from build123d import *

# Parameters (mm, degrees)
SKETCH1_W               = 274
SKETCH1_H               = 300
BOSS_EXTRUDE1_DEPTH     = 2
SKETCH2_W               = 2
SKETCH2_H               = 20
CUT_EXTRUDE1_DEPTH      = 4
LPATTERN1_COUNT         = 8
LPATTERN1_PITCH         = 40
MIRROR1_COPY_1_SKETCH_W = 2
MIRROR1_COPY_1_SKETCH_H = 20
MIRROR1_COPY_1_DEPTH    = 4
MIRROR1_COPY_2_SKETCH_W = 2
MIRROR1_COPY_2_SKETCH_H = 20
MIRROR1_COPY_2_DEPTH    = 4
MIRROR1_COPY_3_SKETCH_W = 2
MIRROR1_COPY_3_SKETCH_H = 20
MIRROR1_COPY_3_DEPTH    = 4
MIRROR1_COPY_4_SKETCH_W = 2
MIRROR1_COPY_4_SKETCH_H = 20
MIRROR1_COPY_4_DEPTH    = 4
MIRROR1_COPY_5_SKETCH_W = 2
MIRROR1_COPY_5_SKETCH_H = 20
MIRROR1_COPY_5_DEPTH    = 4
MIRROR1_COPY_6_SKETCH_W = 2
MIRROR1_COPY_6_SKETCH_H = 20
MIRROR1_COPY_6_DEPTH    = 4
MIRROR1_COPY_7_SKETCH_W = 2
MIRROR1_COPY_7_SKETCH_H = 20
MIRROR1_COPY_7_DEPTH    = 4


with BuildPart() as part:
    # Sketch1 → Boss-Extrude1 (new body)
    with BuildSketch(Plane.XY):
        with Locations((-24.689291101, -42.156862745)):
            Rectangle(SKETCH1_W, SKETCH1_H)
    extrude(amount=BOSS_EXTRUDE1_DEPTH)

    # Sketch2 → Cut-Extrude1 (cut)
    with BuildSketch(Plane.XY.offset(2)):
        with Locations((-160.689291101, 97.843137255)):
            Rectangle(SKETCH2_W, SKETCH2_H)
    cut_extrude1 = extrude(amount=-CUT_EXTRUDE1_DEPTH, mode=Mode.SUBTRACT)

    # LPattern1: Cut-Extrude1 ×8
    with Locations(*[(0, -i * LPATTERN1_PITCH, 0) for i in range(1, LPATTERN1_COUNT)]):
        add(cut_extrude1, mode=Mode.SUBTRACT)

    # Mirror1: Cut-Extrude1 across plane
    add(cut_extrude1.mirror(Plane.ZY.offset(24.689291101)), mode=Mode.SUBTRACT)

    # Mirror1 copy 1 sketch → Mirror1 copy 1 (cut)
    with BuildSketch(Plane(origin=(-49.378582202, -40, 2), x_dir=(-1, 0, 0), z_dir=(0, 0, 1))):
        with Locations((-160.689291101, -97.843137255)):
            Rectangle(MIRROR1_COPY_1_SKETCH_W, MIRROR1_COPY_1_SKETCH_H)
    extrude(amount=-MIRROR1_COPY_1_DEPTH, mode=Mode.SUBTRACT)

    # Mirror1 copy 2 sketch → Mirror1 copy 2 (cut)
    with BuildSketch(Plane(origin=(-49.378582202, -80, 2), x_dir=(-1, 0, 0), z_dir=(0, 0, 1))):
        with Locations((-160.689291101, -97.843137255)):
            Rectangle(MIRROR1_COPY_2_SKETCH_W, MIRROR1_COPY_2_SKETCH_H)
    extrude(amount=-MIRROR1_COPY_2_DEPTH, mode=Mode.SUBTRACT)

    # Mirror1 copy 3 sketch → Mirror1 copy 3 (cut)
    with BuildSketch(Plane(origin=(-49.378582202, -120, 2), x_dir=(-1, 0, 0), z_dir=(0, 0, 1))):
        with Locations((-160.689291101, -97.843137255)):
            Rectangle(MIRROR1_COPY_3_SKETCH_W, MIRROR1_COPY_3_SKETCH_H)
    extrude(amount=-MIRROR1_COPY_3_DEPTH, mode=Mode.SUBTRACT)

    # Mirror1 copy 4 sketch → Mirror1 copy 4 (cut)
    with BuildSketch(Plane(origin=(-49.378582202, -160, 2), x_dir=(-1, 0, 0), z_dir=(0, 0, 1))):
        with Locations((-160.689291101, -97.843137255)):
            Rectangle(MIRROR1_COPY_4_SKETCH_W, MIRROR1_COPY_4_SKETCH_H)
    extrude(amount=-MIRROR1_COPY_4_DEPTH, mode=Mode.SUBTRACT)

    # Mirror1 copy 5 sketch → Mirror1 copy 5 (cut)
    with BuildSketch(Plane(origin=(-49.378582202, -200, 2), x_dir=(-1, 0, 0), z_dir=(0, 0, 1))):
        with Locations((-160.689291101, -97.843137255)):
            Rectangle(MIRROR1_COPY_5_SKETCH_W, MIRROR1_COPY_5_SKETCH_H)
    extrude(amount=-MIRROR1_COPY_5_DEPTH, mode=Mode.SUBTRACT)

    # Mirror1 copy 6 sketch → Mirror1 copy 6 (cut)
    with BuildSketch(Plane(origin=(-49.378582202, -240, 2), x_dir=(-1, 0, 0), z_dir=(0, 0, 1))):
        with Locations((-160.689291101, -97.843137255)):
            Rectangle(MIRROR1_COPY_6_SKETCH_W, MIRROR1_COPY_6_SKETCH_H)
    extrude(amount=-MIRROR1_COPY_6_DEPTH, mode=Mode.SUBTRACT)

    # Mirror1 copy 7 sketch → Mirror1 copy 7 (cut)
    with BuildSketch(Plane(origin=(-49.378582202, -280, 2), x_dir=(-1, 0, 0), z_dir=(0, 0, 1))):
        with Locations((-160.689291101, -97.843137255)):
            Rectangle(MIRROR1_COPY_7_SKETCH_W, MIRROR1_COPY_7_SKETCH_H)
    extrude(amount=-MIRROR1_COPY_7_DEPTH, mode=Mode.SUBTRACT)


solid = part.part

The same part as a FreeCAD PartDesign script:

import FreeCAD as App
import Part
import Sketcher
from FreeCAD import Vector
Q = App.Units.Quantity

doc = App.newDocument("Part")
body = doc.addObject("PartDesign::Body", "Body")

sketch1 = doc.addObject("Sketcher::SketchObject", "Sketch")
body.addObject(sketch1)
sketch1.AttachmentSupport = (doc.XY_Plane, [""])
sketch1.MapMode = "FlatFace"
sketch1.addGeometry(Part.LineSegment(Vector(-161.689291, 107.843137, 0), Vector(-161.689291, -192.156863, 0)), False)
sketch1.addGeometry(Part.LineSegment(Vector(-161.689291, -192.156863, 0), Vector(112.310709, -192.156863, 0)), False)
sketch1.addGeometry(Part.LineSegment(Vector(112.310709, -192.156863, 0), Vector(112.310709, 107.843137, 0)), False)
sketch1.addGeometry(Part.LineSegment(Vector(112.310709, 107.843137, 0), Vector(-161.689291, 107.843137, 0)), False)
sketch1.addConstraint(Sketcher.Constraint("Coincident", 0, 2, 1, 1))
sketch1.addConstraint(Sketcher.Constraint("Coincident", 1, 2, 2, 1))
sketch1.addConstraint(Sketcher.Constraint("Coincident", 2, 2, 3, 1))
sketch1.addConstraint(Sketcher.Constraint("Coincident", 3, 2, 0, 1))
sketch1.addConstraint(Sketcher.Constraint("Vertical", 0))
sketch1.addConstraint(Sketcher.Constraint("Horizontal", 1))
sketch1.addConstraint(Sketcher.Constraint("Vertical", 2))
sketch1.addConstraint(Sketcher.Constraint("Horizontal", 3))
sketch1.addConstraint(Sketcher.Constraint("DistanceX", 1, 1, 1, 2, Q("274 mm")))
sketch1.addConstraint(Sketcher.Constraint("DistanceY", 0, 2, 0, 1, Q("300 mm")))
sketch1.addConstraint(Sketcher.Constraint("DistanceX", 0, 2, -1, 1, Q("161.689291 mm")))
sketch1.addConstraint(Sketcher.Constraint("DistanceY", 0, 2, -1, 1, Q("192.156863 mm")))
pad1 = doc.addObject("PartDesign::Pad", "Pad")
body.addObject(pad1)
pad1.Profile = sketch1
pad1.Length = 2

sketch2 = doc.addObject("Sketcher::SketchObject", "Sketch001")
body.addObject(sketch2)
sketch2.AttachmentSupport = (doc.XY_Plane, [""])
sketch2.MapMode = "FlatFace"
sketch2.AttachmentOffset = App.Placement(Vector(0, 0, 2), App.Rotation())
sketch2.addGeometry(Part.LineSegment(Vector(-161.689291, 107.843137, 0), Vector(-161.689291, 87.843137, 0)), False)
sketch2.addGeometry(Part.LineSegment(Vector(-161.689291, 87.843137, 0), Vector(-159.689291, 87.843137, 0)), False)
sketch2.addGeometry(Part.LineSegment(Vector(-159.689291, 87.843137, 0), Vector(-159.689291, 107.843137, 0)), False)
sketch2.addGeometry(Part.LineSegment(Vector(-159.689291, 107.843137, 0), Vector(-161.689291, 107.843137, 0)), False)
sketch2.addConstraint(Sketcher.Constraint("Coincident", 0, 2, 1, 1))
sketch2.addConstraint(Sketcher.Constraint("Coincident", 1, 2, 2, 1))
sketch2.addConstraint(Sketcher.Constraint("Coincident", 2, 2, 3, 1))
sketch2.addConstraint(Sketcher.Constraint("Coincident", 3, 2, 0, 1))
sketch2.addConstraint(Sketcher.Constraint("Vertical", 0))
sketch2.addConstraint(Sketcher.Constraint("Horizontal", 1))
sketch2.addConstraint(Sketcher.Constraint("Vertical", 2))
sketch2.addConstraint(Sketcher.Constraint("Horizontal", 3))
sketch2.addConstraint(Sketcher.Constraint("DistanceX", 1, 1, 1, 2, Q("2 mm")))
sketch2.addConstraint(Sketcher.Constraint("DistanceY", 0, 2, 0, 1, Q("20 mm")))
sketch2.addConstraint(Sketcher.Constraint("DistanceX", 0, 2, -1, 1, Q("161.689291 mm")))
sketch2.addConstraint(Sketcher.Constraint("DistanceY", -1, 1, 0, 2, Q("87.843137 mm")))
pocket1 = doc.addObject("PartDesign::Pocket", "Pocket")
body.addObject(pocket1)
pocket1.Profile = sketch2
pocket1.Length = 4
doc.recompute()

linearpattern = doc.addObject("PartDesign::LinearPattern", "LinearPattern")
body.addObject(linearpattern)
linearpattern.Originals = [pocket1]
linearpattern.Direction = (doc.Y_Axis, [""])
linearpattern.Mode = "offset"
linearpattern.Offset = 40
linearpattern.Occurrences = 8
linearpattern.Reversed = True
body.Tip = linearpattern
doc.recompute()

datumplane = doc.addObject("PartDesign::Plane", "DatumPlane")
body.addObject(datumplane)
datumplane.AttachmentSupport = (doc.YZ_Plane, [""])
datumplane.MapMode = "FlatFace"
datumplane.AttachmentOffset = App.Placement(Vector(0, 0, -24.689291), App.Rotation())
mirrored = doc.addObject("PartDesign::Mirrored", "Mirrored")
body.addObject(mirrored)
mirrored.Originals = [pocket1]
mirrored.MirrorPlane = (datumplane, [""])
body.Tip = mirrored

sketch3 = doc.addObject("Sketcher::SketchObject", "Sketch002")
body.addObject(sketch3)
sketch3.AttachmentSupport = (doc.XY_Plane, [""])
sketch3.MapMode = "FlatFace"
sketch3.AttachmentOffset = App.Placement(Vector(0, 0, 2), App.Rotation())
sketch3.addGeometry(Part.LineSegment(Vector(112.310709, 47.843137, 0), Vector(112.310709, 67.843137, 0)), False)
sketch3.addGeometry(Part.LineSegment(Vector(112.310709, 67.843137, 0), Vector(110.310709, 67.843137, 0)), False)
sketch3.addGeometry(Part.LineSegment(Vector(110.310709, 67.843137, 0), Vector(110.310709, 47.843137, 0)), False)
sketch3.addGeometry(Part.LineSegment(Vector(110.310709, 47.843137, 0), Vector(112.310709, 47.843137, 0)), False)
sketch3.addConstraint(Sketcher.Constraint("Coincident", 0, 2, 1, 1))
sketch3.addConstraint(Sketcher.Constraint("Coincident", 1, 2, 2, 1))
sketch3.addConstraint(Sketcher.Constraint("Coincident", 2, 2, 3, 1))
sketch3.addConstraint(Sketcher.Constraint("Coincident", 3, 2, 0, 1))
sketch3.addConstraint(Sketcher.Constraint("Vertical", 0))
sketch3.addConstraint(Sketcher.Constraint("Horizontal", 1))
sketch3.addConstraint(Sketcher.Constraint("Vertical", 2))
sketch3.addConstraint(Sketcher.Constraint("Horizontal", 3))
sketch3.addConstraint(Sketcher.Constraint("DistanceX", 1, 2, 1, 1, Q("2 mm")))
sketch3.addConstraint(Sketcher.Constraint("DistanceY", 0, 1, 0, 2, Q("20 mm")))
sketch3.addConstraint(Sketcher.Constraint("DistanceX", -1, 1, 0, 2, Q("112.310709 mm")))
sketch3.addConstraint(Sketcher.Constraint("DistanceY", -1, 1, 0, 2, Q("67.843137 mm")))
pocket2 = doc.addObject("PartDesign::Pocket", "Pocket001")
body.addObject(pocket2)
pocket2.Profile = sketch3
pocket2.Length = 4

sketch4 = doc.addObject("Sketcher::SketchObject", "Sketch003")
body.addObject(sketch4)
sketch4.AttachmentSupport = (doc.XY_Plane, [""])
sketch4.MapMode = "FlatFace"
sketch4.AttachmentOffset = App.Placement(Vector(0, 0, 2), App.Rotation())
sketch4.addGeometry(Part.LineSegment(Vector(112.310709, 7.843137, 0), Vector(112.310709, 27.843137, 0)), False)
sketch4.addGeometry(Part.LineSegment(Vector(112.310709, 27.843137, 0), Vector(110.310709, 27.843137, 0)), False)
sketch4.addGeometry(Part.LineSegment(Vector(110.310709, 27.843137, 0), Vector(110.310709, 7.843137, 0)), False)
sketch4.addGeometry(Part.LineSegment(Vector(110.310709, 7.843137, 0), Vector(112.310709, 7.843137, 0)), False)
sketch4.addConstraint(Sketcher.Constraint("Coincident", 0, 2, 1, 1))
sketch4.addConstraint(Sketcher.Constraint("Coincident", 1, 2, 2, 1))
sketch4.addConstraint(Sketcher.Constraint("Coincident", 2, 2, 3, 1))
sketch4.addConstraint(Sketcher.Constraint("Coincident", 3, 2, 0, 1))
sketch4.addConstraint(Sketcher.Constraint("Vertical", 0))
sketch4.addConstraint(Sketcher.Constraint("Horizontal", 1))
sketch4.addConstraint(Sketcher.Constraint("Vertical", 2))
sketch4.addConstraint(Sketcher.Constraint("Horizontal", 3))
sketch4.addConstraint(Sketcher.Constraint("DistanceX", 1, 2, 1, 1, Q("2 mm")))
sketch4.addConstraint(Sketcher.Constraint("DistanceY", 0, 1, 0, 2, Q("20 mm")))
sketch4.addConstraint(Sketcher.Constraint("DistanceX", -1, 1, 0, 2, Q("112.310709 mm")))
sketch4.addConstraint(Sketcher.Constraint("DistanceY", -1, 1, 0, 2, Q("27.843137 mm")))
pocket3 = doc.addObject("PartDesign::Pocket", "Pocket002")
body.addObject(pocket3)
pocket3.Profile = sketch4
pocket3.Length = 4

sketch5 = doc.addObject("Sketcher::SketchObject", "Sketch004")
body.addObject(sketch5)
sketch5.AttachmentSupport = (doc.XY_Plane, [""])
sketch5.MapMode = "FlatFace"
sketch5.AttachmentOffset = App.Placement(Vector(0, 0, 2), App.Rotation())
sketch5.addGeometry(Part.LineSegment(Vector(112.310709, -32.156863, 0), Vector(112.310709, -12.156863, 0)), False)
sketch5.addGeometry(Part.LineSegment(Vector(112.310709, -12.156863, 0), Vector(110.310709, -12.156863, 0)), False)
sketch5.addGeometry(Part.LineSegment(Vector(110.310709, -12.156863, 0), Vector(110.310709, -32.156863, 0)), False)
sketch5.addGeometry(Part.LineSegment(Vector(110.310709, -32.156863, 0), Vector(112.310709, -32.156863, 0)), False)
sketch5.addConstraint(Sketcher.Constraint("Coincident", 0, 2, 1, 1))
sketch5.addConstraint(Sketcher.Constraint("Coincident", 1, 2, 2, 1))
sketch5.addConstraint(Sketcher.Constraint("Coincident", 2, 2, 3, 1))
sketch5.addConstraint(Sketcher.Constraint("Coincident", 3, 2, 0, 1))
sketch5.addConstraint(Sketcher.Constraint("Vertical", 0))
sketch5.addConstraint(Sketcher.Constraint("Horizontal", 1))
sketch5.addConstraint(Sketcher.Constraint("Vertical", 2))
sketch5.addConstraint(Sketcher.Constraint("Horizontal", 3))
sketch5.addConstraint(Sketcher.Constraint("DistanceX", 1, 2, 1, 1, Q("2 mm")))
sketch5.addConstraint(Sketcher.Constraint("DistanceY", 0, 1, 0, 2, Q("20 mm")))
sketch5.addConstraint(Sketcher.Constraint("DistanceX", -1, 1, 0, 2, Q("112.310709 mm")))
sketch5.addConstraint(Sketcher.Constraint("DistanceY", 0, 2, -1, 1, Q("12.156863 mm")))
pocket4 = doc.addObject("PartDesign::Pocket", "Pocket003")
body.addObject(pocket4)
pocket4.Profile = sketch5
pocket4.Length = 4

sketch6 = doc.addObject("Sketcher::SketchObject", "Sketch005")
body.addObject(sketch6)
sketch6.AttachmentSupport = (doc.XY_Plane, [""])
sketch6.MapMode = "FlatFace"
sketch6.AttachmentOffset = App.Placement(Vector(0, 0, 2), App.Rotation())
sketch6.addGeometry(Part.LineSegment(Vector(112.310709, -72.156863, 0), Vector(112.310709, -52.156863, 0)), False)
sketch6.addGeometry(Part.LineSegment(Vector(112.310709, -52.156863, 0), Vector(110.310709, -52.156863, 0)), False)
sketch6.addGeometry(Part.LineSegment(Vector(110.310709, -52.156863, 0), Vector(110.310709, -72.156863, 0)), False)
sketch6.addGeometry(Part.LineSegment(Vector(110.310709, -72.156863, 0), Vector(112.310709, -72.156863, 0)), False)
sketch6.addConstraint(Sketcher.Constraint("Coincident", 0, 2, 1, 1))
sketch6.addConstraint(Sketcher.Constraint("Coincident", 1, 2, 2, 1))
sketch6.addConstraint(Sketcher.Constraint("Coincident", 2, 2, 3, 1))
sketch6.addConstraint(Sketcher.Constraint("Coincident", 3, 2, 0, 1))
sketch6.addConstraint(Sketcher.Constraint("Vertical", 0))
sketch6.addConstraint(Sketcher.Constraint("Horizontal", 1))
sketch6.addConstraint(Sketcher.Constraint("Vertical", 2))
sketch6.addConstraint(Sketcher.Constraint("Horizontal", 3))
sketch6.addConstraint(Sketcher.Constraint("DistanceX", 1, 2, 1, 1, Q("2 mm")))
sketch6.addConstraint(Sketcher.Constraint("DistanceY", 0, 1, 0, 2, Q("20 mm")))
sketch6.addConstraint(Sketcher.Constraint("DistanceX", -1, 1, 0, 2, Q("112.310709 mm")))
sketch6.addConstraint(Sketcher.Constraint("DistanceY", 0, 2, -1, 1, Q("52.156863 mm")))
pocket5 = doc.addObject("PartDesign::Pocket", "Pocket004")
body.addObject(pocket5)
pocket5.Profile = sketch6
pocket5.Length = 4

sketch7 = doc.addObject("Sketcher::SketchObject", "Sketch006")
body.addObject(sketch7)
sketch7.AttachmentSupport = (doc.XY_Plane, [""])
sketch7.MapMode = "FlatFace"
sketch7.AttachmentOffset = App.Placement(Vector(0, 0, 2), App.Rotation())
sketch7.addGeometry(Part.LineSegment(Vector(112.310709, -112.156863, 0), Vector(112.310709, -92.156863, 0)), False)
sketch7.addGeometry(Part.LineSegment(Vector(112.310709, -92.156863, 0), Vector(110.310709, -92.156863, 0)), False)
sketch7.addGeometry(Part.LineSegment(Vector(110.310709, -92.156863, 0), Vector(110.310709, -112.156863, 0)), False)
sketch7.addGeometry(Part.LineSegment(Vector(110.310709, -112.156863, 0), Vector(112.310709, -112.156863, 0)), False)
sketch7.addConstraint(Sketcher.Constraint("Coincident", 0, 2, 1, 1))
sketch7.addConstraint(Sketcher.Constraint("Coincident", 1, 2, 2, 1))
sketch7.addConstraint(Sketcher.Constraint("Coincident", 2, 2, 3, 1))
sketch7.addConstraint(Sketcher.Constraint("Coincident", 3, 2, 0, 1))
sketch7.addConstraint(Sketcher.Constraint("Vertical", 0))
sketch7.addConstraint(Sketcher.Constraint("Horizontal", 1))
sketch7.addConstraint(Sketcher.Constraint("Vertical", 2))
sketch7.addConstraint(Sketcher.Constraint("Horizontal", 3))
sketch7.addConstraint(Sketcher.Constraint("DistanceX", 1, 2, 1, 1, Q("2 mm")))
sketch7.addConstraint(Sketcher.Constraint("DistanceY", 0, 1, 0, 2, Q("20 mm")))
sketch7.addConstraint(Sketcher.Constraint("DistanceX", -1, 1, 0, 2, Q("112.310709 mm")))
sketch7.addConstraint(Sketcher.Constraint("DistanceY", 0, 2, -1, 1, Q("92.156863 mm")))
pocket6 = doc.addObject("PartDesign::Pocket", "Pocket005")
body.addObject(pocket6)
pocket6.Profile = sketch7
pocket6.Length = 4

sketch8 = doc.addObject("Sketcher::SketchObject", "Sketch007")
body.addObject(sketch8)
sketch8.AttachmentSupport = (doc.XY_Plane, [""])
sketch8.MapMode = "FlatFace"
sketch8.AttachmentOffset = App.Placement(Vector(0, 0, 2), App.Rotation())
sketch8.addGeometry(Part.LineSegment(Vector(112.310709, -152.156863, 0), Vector(112.310709, -132.156863, 0)), False)
sketch8.addGeometry(Part.LineSegment(Vector(112.310709, -132.156863, 0), Vector(110.310709, -132.156863, 0)), False)
sketch8.addGeometry(Part.LineSegment(Vector(110.310709, -132.156863, 0), Vector(110.310709, -152.156863, 0)), False)
sketch8.addGeometry(Part.LineSegment(Vector(110.310709, -152.156863, 0), Vector(112.310709, -152.156863, 0)), False)
sketch8.addConstraint(Sketcher.Constraint("Coincident", 0, 2, 1, 1))
sketch8.addConstraint(Sketcher.Constraint("Coincident", 1, 2, 2, 1))
sketch8.addConstraint(Sketcher.Constraint("Coincident", 2, 2, 3, 1))
sketch8.addConstraint(Sketcher.Constraint("Coincident", 3, 2, 0, 1))
sketch8.addConstraint(Sketcher.Constraint("Vertical", 0))
sketch8.addConstraint(Sketcher.Constraint("Horizontal", 1))
sketch8.addConstraint(Sketcher.Constraint("Vertical", 2))
sketch8.addConstraint(Sketcher.Constraint("Horizontal", 3))
sketch8.addConstraint(Sketcher.Constraint("DistanceX", 1, 2, 1, 1, Q("2 mm")))
sketch8.addConstraint(Sketcher.Constraint("DistanceY", 0, 1, 0, 2, Q("20 mm")))
sketch8.addConstraint(Sketcher.Constraint("DistanceX", -1, 1, 0, 2, Q("112.310709 mm")))
sketch8.addConstraint(Sketcher.Constraint("DistanceY", 0, 2, -1, 1, Q("132.156863 mm")))
pocket7 = doc.addObject("PartDesign::Pocket", "Pocket006")
body.addObject(pocket7)
pocket7.Profile = sketch8
pocket7.Length = 4

sketch9 = doc.addObject("Sketcher::SketchObject", "Sketch008")
body.addObject(sketch9)
sketch9.AttachmentSupport = (doc.XY_Plane, [""])
sketch9.MapMode = "FlatFace"
sketch9.AttachmentOffset = App.Placement(Vector(0, 0, 2), App.Rotation())
sketch9.addGeometry(Part.LineSegment(Vector(112.310709, -192.156863, 0), Vector(112.310709, -172.156863, 0)), False)
sketch9.addGeometry(Part.LineSegment(Vector(112.310709, -172.156863, 0), Vector(110.310709, -172.156863, 0)), False)
sketch9.addGeometry(Part.LineSegment(Vector(110.310709, -172.156863, 0), Vector(110.310709, -192.156863, 0)), False)
sketch9.addGeometry(Part.LineSegment(Vector(110.310709, -192.156863, 0), Vector(112.310709, -192.156863, 0)), False)
sketch9.addConstraint(Sketcher.Constraint("Coincident", 0, 2, 1, 1))
sketch9.addConstraint(Sketcher.Constraint("Coincident", 1, 2, 2, 1))
sketch9.addConstraint(Sketcher.Constraint("Coincident", 2, 2, 3, 1))
sketch9.addConstraint(Sketcher.Constraint("Coincident", 3, 2, 0, 1))
sketch9.addConstraint(Sketcher.Constraint("Vertical", 0))
sketch9.addConstraint(Sketcher.Constraint("Horizontal", 1))
sketch9.addConstraint(Sketcher.Constraint("Vertical", 2))
sketch9.addConstraint(Sketcher.Constraint("Horizontal", 3))
sketch9.addConstraint(Sketcher.Constraint("DistanceX", 1, 2, 1, 1, Q("2 mm")))
sketch9.addConstraint(Sketcher.Constraint("DistanceY", 0, 1, 0, 2, Q("20 mm")))
sketch9.addConstraint(Sketcher.Constraint("DistanceX", -1, 1, 0, 2, Q("112.310709 mm")))
sketch9.addConstraint(Sketcher.Constraint("DistanceY", 0, 2, -1, 1, Q("172.156863 mm")))
pocket8 = doc.addObject("PartDesign::Pocket", "Pocket007")
body.addObject(pocket8)
pocket8.Profile = sketch9
pocket8.Length = 4

doc.recompute()
